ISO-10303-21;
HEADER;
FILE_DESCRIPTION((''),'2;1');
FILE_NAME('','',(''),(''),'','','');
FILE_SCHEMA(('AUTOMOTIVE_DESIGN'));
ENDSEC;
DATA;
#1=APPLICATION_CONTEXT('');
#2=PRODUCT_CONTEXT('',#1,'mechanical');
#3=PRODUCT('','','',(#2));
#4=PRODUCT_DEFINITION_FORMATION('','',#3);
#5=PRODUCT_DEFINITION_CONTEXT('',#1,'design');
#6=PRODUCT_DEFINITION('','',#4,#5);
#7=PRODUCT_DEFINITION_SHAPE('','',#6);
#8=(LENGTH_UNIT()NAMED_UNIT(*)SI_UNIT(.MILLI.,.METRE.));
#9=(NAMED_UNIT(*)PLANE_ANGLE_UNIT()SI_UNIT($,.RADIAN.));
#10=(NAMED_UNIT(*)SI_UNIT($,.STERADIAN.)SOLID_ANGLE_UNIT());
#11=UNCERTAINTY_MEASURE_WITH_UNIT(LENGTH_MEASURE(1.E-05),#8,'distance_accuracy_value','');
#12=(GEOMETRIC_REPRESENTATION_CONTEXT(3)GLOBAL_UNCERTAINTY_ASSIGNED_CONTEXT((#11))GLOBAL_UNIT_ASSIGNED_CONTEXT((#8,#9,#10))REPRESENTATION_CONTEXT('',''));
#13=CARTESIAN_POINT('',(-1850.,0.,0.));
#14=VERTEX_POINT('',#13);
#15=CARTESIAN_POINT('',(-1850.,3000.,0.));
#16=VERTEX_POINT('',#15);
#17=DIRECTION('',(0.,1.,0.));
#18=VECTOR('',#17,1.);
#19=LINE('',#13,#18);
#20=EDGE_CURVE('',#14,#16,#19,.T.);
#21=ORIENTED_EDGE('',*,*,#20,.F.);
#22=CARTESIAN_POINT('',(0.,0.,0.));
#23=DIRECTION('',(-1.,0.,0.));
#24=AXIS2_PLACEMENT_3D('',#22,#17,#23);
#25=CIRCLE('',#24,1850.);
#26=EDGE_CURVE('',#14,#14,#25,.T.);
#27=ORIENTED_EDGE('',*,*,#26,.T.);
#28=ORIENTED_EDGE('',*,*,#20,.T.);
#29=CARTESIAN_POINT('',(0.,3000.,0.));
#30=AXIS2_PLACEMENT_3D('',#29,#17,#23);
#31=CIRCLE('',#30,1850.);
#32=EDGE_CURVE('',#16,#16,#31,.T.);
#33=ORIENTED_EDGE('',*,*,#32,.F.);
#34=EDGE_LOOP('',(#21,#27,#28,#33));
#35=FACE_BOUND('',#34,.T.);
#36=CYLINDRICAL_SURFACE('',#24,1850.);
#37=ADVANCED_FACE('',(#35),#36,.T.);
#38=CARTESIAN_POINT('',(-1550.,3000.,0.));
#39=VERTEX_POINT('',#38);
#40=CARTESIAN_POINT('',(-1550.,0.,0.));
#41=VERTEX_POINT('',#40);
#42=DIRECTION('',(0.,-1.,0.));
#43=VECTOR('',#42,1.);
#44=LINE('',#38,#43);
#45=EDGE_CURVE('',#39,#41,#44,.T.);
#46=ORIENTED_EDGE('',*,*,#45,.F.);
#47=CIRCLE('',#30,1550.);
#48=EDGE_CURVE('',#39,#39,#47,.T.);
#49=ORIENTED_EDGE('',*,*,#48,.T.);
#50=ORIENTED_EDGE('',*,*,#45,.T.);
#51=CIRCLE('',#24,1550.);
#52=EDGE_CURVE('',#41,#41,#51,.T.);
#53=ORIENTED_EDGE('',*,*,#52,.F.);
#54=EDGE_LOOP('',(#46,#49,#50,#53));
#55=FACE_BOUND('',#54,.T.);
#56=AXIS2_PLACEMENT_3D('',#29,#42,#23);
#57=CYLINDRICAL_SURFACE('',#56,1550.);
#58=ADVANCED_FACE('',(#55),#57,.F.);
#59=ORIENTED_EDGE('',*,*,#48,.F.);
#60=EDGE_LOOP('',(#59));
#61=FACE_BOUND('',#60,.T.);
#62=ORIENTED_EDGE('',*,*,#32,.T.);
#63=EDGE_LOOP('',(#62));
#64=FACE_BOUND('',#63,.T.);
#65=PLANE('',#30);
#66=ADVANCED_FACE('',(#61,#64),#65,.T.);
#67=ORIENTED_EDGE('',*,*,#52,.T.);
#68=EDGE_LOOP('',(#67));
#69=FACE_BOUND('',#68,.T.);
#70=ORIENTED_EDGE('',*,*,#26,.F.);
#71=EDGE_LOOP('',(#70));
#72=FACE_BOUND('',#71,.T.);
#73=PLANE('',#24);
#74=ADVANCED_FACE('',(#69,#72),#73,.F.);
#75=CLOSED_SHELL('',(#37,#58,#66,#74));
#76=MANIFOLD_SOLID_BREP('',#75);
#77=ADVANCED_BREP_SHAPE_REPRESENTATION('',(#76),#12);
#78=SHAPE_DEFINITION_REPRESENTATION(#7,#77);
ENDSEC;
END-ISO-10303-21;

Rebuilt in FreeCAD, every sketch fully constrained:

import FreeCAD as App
import Part
import Sketcher
from FreeCAD import Vector

doc = App.newDocument("Part")
body = doc.addObject("PartDesign::Body", "Body")

sketch1 = doc.addObject("Sketcher::SketchObject", "Sketch")
body.addObject(sketch1)
sketch1.AttachmentSupport = (doc.XY_Plane, [""])
sketch1.MapMode = "FlatFace"
sketch1.addGeometry(Part.LineSegment(Vector(-1550, 3000, 0), Vector(-1850, 3000, 0)), False)
sketch1.addGeometry(Part.LineSegment(Vector(-1850, 3000, 0), Vector(-1850, 0, 0)), False)
sketch1.addGeometry(Part.LineSegment(Vector(-1850, 0, 0), Vector(-1550, 0, 0)), False)
sketch1.addGeometry(Part.LineSegment(Vector(-1550, 0, 0), Vector(-1550, 3000, 0)), False)
sketch1.addConstraint(Sketcher.Constraint("Coincident", 0, 2, 1, 1))
sketch1.addConstraint(Sketcher.Constraint("Coincident", 1, 2, 2, 1))
sketch1.addConstraint(Sketcher.Constraint("Coincident", 2, 2, 3, 1))
sketch1.addConstraint(Sketcher.Constraint("Coincident", 3, 2, 0, 1))
sketch1.addConstraint(Sketcher.Constraint("Horizontal", 0))
sketch1.addConstraint(Sketcher.Constraint("Vertical", 1))
sketch1.addConstraint(Sketcher.Constraint("Horizontal", 2))
sketch1.addConstraint(Sketcher.Constraint("Vertical", 3))
sketch1.addConstraint(Sketcher.Constraint("PointOnObject", 1, 2, -1))
sketch1.addConstraint(Sketcher.Constraint("DistanceY", 1, 2, 1, 1, 3000.0))
sketch1.addConstraint(Sketcher.Constraint("DistanceX", 0, 2, -1, 1, 1850.0))
sketch1.addConstraint(Sketcher.Constraint("DistanceX", 2, 2, -1, 1, 1550.0))
revolution = doc.addObject("PartDesign::Revolution", "Revolution")
body.addObject(revolution)
revolution.Profile = sketch1
revolution.ReferenceAxis = (sketch1, ["V_Axis"])
revolution.Angle = 360

doc.recompute()
